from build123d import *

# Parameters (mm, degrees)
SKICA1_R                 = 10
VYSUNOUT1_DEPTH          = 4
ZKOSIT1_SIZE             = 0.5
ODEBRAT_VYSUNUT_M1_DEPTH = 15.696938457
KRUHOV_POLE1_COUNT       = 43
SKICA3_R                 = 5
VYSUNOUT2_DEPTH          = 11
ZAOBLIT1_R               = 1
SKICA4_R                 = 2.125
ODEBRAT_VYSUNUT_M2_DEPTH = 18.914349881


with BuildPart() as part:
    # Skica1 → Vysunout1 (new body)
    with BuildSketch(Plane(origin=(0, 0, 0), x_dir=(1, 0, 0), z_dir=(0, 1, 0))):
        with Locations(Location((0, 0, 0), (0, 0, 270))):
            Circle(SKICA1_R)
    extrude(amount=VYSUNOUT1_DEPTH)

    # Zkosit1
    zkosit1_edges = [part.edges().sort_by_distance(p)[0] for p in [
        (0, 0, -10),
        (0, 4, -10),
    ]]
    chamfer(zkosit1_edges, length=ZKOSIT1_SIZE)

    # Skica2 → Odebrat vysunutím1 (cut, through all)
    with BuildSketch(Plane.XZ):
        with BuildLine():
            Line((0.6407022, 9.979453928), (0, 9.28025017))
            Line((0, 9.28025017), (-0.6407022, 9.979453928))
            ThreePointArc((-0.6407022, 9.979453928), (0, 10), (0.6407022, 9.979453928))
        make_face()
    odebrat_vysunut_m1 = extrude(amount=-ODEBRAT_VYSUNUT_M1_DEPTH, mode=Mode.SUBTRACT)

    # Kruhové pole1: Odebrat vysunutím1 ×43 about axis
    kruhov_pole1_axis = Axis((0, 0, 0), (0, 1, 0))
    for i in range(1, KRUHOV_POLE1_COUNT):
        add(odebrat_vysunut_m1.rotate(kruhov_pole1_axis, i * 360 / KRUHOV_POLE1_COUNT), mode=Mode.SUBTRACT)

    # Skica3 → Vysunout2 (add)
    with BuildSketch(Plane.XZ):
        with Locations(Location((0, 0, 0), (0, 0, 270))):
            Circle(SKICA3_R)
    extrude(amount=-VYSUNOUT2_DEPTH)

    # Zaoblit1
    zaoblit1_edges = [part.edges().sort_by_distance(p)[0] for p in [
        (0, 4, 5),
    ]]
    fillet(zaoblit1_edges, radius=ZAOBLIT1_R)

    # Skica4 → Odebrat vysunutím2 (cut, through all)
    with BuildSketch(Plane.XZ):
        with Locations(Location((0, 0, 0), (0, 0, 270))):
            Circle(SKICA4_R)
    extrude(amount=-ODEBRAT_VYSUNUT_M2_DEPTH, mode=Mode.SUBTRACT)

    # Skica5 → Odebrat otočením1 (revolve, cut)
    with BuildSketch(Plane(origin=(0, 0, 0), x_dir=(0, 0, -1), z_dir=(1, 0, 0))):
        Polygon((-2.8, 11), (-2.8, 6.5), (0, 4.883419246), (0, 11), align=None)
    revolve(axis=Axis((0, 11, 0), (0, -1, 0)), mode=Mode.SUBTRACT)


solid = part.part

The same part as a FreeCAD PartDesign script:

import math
import FreeCAD as App
import Part
import Sketcher
Q = App.Units.Quantity


def edges_at(feature, points):
    """Names of the edges that pass closest to the given points."""
    edges = feature.Shape.Edges
    near = lambda p: min(range(len(edges)), key=lambda i: edges[i].distToShape(Part.Vertex(*p))[0])
    return sorted({f"Edge{near(p) + 1}" for p in points})

doc = App.newDocument("Part")
params = doc.addObject("Spreadsheet::Sheet", "Params")
for row, (alias, value) in enumerate([
    ("sketch1_diameter", "20 mm"),
    ("pad1_length", "4 mm"),
    ("chamfer_size", "0.5 mm"),
    ("sketch2_radius", "10 mm"),
    ("sketch3_diameter", "10 mm"),
    ("pad2_length", "11 mm"),
    ("fillet_radius", "1 mm"),
    ("sketch4_diameter", "4.25 mm"),
    ("sketch5_width", "4.5 mm"),
    ("sketch5_height", "2.8 mm"),
    ("groove_angle", "360 deg"),
], start=1):
    params.set(f"A{row}", alias)
    params.set(f"B{row}", "=" + value)
    params.setAlias(f"B{row}", alias)

body = doc.addObject("PartDesign::Body", "Body")

sketch1 = body.newObject("Sketcher::SketchObject", "Sketch")
sketch1.AttachmentSupport = (doc.getObject("XZ_Plane"), [""])
sketch1.MapMode = "FlatFace"
sketch1.addGeometry(Part.Circle(App.Vector(0, 0, 0), App.Vector(0, 0, 1), 10), False)
sketch1.addConstraint(Sketcher.Constraint("Coincident", 0, 3, -1, 1))
sketch1.addConstraint(Sketcher.Constraint("Diameter", 0, Q("20 mm")))
sketch1.setExpression("Constraints[1]", "Params.sketch1_diameter")
pad1 = body.newObject("PartDesign::Pad", "Pad")
pad1.Profile = sketch1
pad1.setExpression("Length", "Params.pad1_length")
pad1.Reversed = True
doc.recompute()

chamfer = body.newObject("PartDesign::Chamfer", "Chamfer")
chamfer.Base = (pad1, edges_at(pad1, [(0, 0, -10), (0, 4, -10)]))
chamfer.setExpression("Size", "Params.chamfer_size")

sketch2 = body.newObject("Sketcher::SketchObject", "Sketch001")
sketch2.AttachmentSupport = (doc.getObject("XZ_Plane"), [""])
sketch2.MapMode = "FlatFace"
sketch2.addGeometry(Part.LineSegment(App.Vector(0, 9.28025, 0), App.Vector(0.640702, 9.979454, 0)), False)
sketch2.addGeometry(Part.ArcOfCircle(Part.Circle(App.Vector(0, 0, 0), App.Vector(0, 0, 1), 10), math.radians(86.326531), math.radians(93.673469)), False)
sketch2.addGeometry(Part.LineSegment(App.Vector(-0.640702, 9.979454, 0), App.Vector(0, 9.28025, 0)), False)
sketch2.addConstraint(Sketcher.Constraint("Coincident", 0, 2, 1, 1))
sketch2.addConstraint(Sketcher.Constraint("Coincident", 1, 2, 2, 1))
sketch2.addConstraint(Sketcher.Constraint("Coincident", 2, 2, 0, 1))
sketch2.addConstraint(Sketcher.Constraint("Coincident", 1, 3, -1, 1))
sketch2.addConstraint(Sketcher.Constraint("PointOnObject", 2, 2, -2))
sketch2.addConstraint(Sketcher.Constraint("Horizontal", 0, 2, 1, 2))
sketch2.addConstraint(Sketcher.Constraint("Radius", 1, Q("10 mm")))
sketch2.addConstraint(Sketcher.Constraint("Angle", 0, Q("47.5 deg")))
sketch2.addConstraint(Sketcher.Constraint("Distance", 0, Q("0.948359 mm")))
sketch2.setExpression("Constraints[6]", "Params.sketch2_radius")
pocket1 = body.newObject("PartDesign::Pocket", "Pocket")
pocket1.Profile = sketch2
pocket1.Type = "ThroughAll"
doc.recompute()

polarpattern = body.newObject("PartDesign::PolarPattern", "PolarPattern")
polarpattern.Originals = [pocket1]
polarpattern.Axis = (doc.getObject("Y_Axis"), [""])
polarpattern.Angle = 360
polarpattern.Occurrences = 43
body.Tip = polarpattern

sketch3 = body.newObject("Sketcher::SketchObject", "Sketch002")
sketch3.AttachmentSupport = (doc.getObject("XZ_Plane"), [""])
sketch3.MapMode = "FlatFace"
sketch3.addGeometry(Part.Circle(App.Vector(0, 0, 0), App.Vector(0, 0, 1), 5), False)
sketch3.addConstraint(Sketcher.Constraint("Coincident", 0, 3, -1, 1))
sketch3.addConstraint(Sketcher.Constraint("Diameter", 0, Q("10 mm")))
sketch3.setExpression("Constraints[1]", "Params.sketch3_diameter")
pad2 = body.newObject("PartDesign::Pad", "Pad001")
pad2.Profile = sketch3
pad2.setExpression("Length", "Params.pad2_length")
pad2.Reversed = True
doc.recompute()

fillet = body.newObject("PartDesign::Fillet", "Fillet")
fillet.Base = (pad2, edges_at(pad2, [(0, 4, 5)]))
fillet.setExpression("Radius", "Params.fillet_radius")

sketch4 = body.newObject("Sketcher::SketchObject", "Sketch003")
sketch4.AttachmentSupport = (doc.getObject("XZ_Plane"), [""])
sketch4.MapMode = "FlatFace"
sketch4.addGeometry(Part.Circle(App.Vector(0, 0, 0), App.Vector(0, 0, 1), 2.125), False)
sketch4.addConstraint(Sketcher.Constraint("Coincident", 0, 3, -1, 1))
sketch4.addConstraint(Sketcher.Constraint("Diameter", 0, Q("4.25 mm")))
sketch4.setExpression("Constraints[1]", "Params.sketch4_diameter")
pocket2 = body.newObject("PartDesign::Pocket", "Pocket001")
pocket2.Profile = sketch4
pocket2.Type = "ThroughAll"

sketch5 = body.newObject("Sketcher::SketchObject", "Sketch004")
sketch5.AttachmentSupport = (doc.getObject("YZ_Plane"), [""])
sketch5.MapMode = "FlatFace"
sketch5.addGeometry(Part.LineSegment(App.Vector(11, 2.8, 0), App.Vector(6.5, 2.8, 0)), False)
sketch5.addGeometry(Part.LineSegment(App.Vector(6.5, 2.8, 0), App.Vector(4.883419, 0, 0)), False)
sketch5.addGeometry(Part.LineSegment(App.Vector(4.883419, 0, 0), App.Vector(11, 0, 0)), False)
sketch5.addGeometry(Part.LineSegment(App.Vector(11, 0, 0), App.Vector(11, 2.8, 0)), False)
sketch5.addConstraint(Sketcher.Constraint("Coincident", 0, 2, 1, 1))
sketch5.addConstraint(Sketcher.Constraint("Coincident", 1, 2, 2, 1))
sketch5.addConstraint(Sketcher.Constraint("Coincident", 2, 2, 3, 1))
sketch5.addConstraint(Sketcher.Constraint("Coincident", 3, 2, 0, 1))
sketch5.addConstraint(Sketcher.Constraint("Horizontal", 0))
sketch5.addConstraint(Sketcher.Constraint("Horizontal", 2))
sketch5.addConstraint(Sketcher.Constraint("Vertical", 3))
sketch5.addConstraint(Sketcher.Constraint("PointOnObject", 1, 2, -1))
sketch5.addConstraint(Sketcher.Constraint("Angle", 1, Q("-120 deg")))
sketch5.addConstraint(Sketcher.Constraint("DistanceX", 0, 2, 0, 1, Q("4.5 mm")))
sketch5.addConstraint(Sketcher.Constraint("DistanceY", 3, 1, 3, 2, Q("2.8 mm")))
sketch5.addConstraint(Sketcher.Constraint("DistanceX", -1, 1, 2, 2, Q("11 mm")))
sketch5.setExpression("Constraints[9]", "Params.sketch5_width")
sketch5.setExpression("Constraints[10]", "Params.sketch5_height")
groove = body.newObject("PartDesign::Groove", "Groove")
groove.Profile = sketch5
groove.ReferenceAxis = (sketch5, ["H_Axis"])
groove.setExpression("Angle", "Params.groove_angle")

doc.recompute()
